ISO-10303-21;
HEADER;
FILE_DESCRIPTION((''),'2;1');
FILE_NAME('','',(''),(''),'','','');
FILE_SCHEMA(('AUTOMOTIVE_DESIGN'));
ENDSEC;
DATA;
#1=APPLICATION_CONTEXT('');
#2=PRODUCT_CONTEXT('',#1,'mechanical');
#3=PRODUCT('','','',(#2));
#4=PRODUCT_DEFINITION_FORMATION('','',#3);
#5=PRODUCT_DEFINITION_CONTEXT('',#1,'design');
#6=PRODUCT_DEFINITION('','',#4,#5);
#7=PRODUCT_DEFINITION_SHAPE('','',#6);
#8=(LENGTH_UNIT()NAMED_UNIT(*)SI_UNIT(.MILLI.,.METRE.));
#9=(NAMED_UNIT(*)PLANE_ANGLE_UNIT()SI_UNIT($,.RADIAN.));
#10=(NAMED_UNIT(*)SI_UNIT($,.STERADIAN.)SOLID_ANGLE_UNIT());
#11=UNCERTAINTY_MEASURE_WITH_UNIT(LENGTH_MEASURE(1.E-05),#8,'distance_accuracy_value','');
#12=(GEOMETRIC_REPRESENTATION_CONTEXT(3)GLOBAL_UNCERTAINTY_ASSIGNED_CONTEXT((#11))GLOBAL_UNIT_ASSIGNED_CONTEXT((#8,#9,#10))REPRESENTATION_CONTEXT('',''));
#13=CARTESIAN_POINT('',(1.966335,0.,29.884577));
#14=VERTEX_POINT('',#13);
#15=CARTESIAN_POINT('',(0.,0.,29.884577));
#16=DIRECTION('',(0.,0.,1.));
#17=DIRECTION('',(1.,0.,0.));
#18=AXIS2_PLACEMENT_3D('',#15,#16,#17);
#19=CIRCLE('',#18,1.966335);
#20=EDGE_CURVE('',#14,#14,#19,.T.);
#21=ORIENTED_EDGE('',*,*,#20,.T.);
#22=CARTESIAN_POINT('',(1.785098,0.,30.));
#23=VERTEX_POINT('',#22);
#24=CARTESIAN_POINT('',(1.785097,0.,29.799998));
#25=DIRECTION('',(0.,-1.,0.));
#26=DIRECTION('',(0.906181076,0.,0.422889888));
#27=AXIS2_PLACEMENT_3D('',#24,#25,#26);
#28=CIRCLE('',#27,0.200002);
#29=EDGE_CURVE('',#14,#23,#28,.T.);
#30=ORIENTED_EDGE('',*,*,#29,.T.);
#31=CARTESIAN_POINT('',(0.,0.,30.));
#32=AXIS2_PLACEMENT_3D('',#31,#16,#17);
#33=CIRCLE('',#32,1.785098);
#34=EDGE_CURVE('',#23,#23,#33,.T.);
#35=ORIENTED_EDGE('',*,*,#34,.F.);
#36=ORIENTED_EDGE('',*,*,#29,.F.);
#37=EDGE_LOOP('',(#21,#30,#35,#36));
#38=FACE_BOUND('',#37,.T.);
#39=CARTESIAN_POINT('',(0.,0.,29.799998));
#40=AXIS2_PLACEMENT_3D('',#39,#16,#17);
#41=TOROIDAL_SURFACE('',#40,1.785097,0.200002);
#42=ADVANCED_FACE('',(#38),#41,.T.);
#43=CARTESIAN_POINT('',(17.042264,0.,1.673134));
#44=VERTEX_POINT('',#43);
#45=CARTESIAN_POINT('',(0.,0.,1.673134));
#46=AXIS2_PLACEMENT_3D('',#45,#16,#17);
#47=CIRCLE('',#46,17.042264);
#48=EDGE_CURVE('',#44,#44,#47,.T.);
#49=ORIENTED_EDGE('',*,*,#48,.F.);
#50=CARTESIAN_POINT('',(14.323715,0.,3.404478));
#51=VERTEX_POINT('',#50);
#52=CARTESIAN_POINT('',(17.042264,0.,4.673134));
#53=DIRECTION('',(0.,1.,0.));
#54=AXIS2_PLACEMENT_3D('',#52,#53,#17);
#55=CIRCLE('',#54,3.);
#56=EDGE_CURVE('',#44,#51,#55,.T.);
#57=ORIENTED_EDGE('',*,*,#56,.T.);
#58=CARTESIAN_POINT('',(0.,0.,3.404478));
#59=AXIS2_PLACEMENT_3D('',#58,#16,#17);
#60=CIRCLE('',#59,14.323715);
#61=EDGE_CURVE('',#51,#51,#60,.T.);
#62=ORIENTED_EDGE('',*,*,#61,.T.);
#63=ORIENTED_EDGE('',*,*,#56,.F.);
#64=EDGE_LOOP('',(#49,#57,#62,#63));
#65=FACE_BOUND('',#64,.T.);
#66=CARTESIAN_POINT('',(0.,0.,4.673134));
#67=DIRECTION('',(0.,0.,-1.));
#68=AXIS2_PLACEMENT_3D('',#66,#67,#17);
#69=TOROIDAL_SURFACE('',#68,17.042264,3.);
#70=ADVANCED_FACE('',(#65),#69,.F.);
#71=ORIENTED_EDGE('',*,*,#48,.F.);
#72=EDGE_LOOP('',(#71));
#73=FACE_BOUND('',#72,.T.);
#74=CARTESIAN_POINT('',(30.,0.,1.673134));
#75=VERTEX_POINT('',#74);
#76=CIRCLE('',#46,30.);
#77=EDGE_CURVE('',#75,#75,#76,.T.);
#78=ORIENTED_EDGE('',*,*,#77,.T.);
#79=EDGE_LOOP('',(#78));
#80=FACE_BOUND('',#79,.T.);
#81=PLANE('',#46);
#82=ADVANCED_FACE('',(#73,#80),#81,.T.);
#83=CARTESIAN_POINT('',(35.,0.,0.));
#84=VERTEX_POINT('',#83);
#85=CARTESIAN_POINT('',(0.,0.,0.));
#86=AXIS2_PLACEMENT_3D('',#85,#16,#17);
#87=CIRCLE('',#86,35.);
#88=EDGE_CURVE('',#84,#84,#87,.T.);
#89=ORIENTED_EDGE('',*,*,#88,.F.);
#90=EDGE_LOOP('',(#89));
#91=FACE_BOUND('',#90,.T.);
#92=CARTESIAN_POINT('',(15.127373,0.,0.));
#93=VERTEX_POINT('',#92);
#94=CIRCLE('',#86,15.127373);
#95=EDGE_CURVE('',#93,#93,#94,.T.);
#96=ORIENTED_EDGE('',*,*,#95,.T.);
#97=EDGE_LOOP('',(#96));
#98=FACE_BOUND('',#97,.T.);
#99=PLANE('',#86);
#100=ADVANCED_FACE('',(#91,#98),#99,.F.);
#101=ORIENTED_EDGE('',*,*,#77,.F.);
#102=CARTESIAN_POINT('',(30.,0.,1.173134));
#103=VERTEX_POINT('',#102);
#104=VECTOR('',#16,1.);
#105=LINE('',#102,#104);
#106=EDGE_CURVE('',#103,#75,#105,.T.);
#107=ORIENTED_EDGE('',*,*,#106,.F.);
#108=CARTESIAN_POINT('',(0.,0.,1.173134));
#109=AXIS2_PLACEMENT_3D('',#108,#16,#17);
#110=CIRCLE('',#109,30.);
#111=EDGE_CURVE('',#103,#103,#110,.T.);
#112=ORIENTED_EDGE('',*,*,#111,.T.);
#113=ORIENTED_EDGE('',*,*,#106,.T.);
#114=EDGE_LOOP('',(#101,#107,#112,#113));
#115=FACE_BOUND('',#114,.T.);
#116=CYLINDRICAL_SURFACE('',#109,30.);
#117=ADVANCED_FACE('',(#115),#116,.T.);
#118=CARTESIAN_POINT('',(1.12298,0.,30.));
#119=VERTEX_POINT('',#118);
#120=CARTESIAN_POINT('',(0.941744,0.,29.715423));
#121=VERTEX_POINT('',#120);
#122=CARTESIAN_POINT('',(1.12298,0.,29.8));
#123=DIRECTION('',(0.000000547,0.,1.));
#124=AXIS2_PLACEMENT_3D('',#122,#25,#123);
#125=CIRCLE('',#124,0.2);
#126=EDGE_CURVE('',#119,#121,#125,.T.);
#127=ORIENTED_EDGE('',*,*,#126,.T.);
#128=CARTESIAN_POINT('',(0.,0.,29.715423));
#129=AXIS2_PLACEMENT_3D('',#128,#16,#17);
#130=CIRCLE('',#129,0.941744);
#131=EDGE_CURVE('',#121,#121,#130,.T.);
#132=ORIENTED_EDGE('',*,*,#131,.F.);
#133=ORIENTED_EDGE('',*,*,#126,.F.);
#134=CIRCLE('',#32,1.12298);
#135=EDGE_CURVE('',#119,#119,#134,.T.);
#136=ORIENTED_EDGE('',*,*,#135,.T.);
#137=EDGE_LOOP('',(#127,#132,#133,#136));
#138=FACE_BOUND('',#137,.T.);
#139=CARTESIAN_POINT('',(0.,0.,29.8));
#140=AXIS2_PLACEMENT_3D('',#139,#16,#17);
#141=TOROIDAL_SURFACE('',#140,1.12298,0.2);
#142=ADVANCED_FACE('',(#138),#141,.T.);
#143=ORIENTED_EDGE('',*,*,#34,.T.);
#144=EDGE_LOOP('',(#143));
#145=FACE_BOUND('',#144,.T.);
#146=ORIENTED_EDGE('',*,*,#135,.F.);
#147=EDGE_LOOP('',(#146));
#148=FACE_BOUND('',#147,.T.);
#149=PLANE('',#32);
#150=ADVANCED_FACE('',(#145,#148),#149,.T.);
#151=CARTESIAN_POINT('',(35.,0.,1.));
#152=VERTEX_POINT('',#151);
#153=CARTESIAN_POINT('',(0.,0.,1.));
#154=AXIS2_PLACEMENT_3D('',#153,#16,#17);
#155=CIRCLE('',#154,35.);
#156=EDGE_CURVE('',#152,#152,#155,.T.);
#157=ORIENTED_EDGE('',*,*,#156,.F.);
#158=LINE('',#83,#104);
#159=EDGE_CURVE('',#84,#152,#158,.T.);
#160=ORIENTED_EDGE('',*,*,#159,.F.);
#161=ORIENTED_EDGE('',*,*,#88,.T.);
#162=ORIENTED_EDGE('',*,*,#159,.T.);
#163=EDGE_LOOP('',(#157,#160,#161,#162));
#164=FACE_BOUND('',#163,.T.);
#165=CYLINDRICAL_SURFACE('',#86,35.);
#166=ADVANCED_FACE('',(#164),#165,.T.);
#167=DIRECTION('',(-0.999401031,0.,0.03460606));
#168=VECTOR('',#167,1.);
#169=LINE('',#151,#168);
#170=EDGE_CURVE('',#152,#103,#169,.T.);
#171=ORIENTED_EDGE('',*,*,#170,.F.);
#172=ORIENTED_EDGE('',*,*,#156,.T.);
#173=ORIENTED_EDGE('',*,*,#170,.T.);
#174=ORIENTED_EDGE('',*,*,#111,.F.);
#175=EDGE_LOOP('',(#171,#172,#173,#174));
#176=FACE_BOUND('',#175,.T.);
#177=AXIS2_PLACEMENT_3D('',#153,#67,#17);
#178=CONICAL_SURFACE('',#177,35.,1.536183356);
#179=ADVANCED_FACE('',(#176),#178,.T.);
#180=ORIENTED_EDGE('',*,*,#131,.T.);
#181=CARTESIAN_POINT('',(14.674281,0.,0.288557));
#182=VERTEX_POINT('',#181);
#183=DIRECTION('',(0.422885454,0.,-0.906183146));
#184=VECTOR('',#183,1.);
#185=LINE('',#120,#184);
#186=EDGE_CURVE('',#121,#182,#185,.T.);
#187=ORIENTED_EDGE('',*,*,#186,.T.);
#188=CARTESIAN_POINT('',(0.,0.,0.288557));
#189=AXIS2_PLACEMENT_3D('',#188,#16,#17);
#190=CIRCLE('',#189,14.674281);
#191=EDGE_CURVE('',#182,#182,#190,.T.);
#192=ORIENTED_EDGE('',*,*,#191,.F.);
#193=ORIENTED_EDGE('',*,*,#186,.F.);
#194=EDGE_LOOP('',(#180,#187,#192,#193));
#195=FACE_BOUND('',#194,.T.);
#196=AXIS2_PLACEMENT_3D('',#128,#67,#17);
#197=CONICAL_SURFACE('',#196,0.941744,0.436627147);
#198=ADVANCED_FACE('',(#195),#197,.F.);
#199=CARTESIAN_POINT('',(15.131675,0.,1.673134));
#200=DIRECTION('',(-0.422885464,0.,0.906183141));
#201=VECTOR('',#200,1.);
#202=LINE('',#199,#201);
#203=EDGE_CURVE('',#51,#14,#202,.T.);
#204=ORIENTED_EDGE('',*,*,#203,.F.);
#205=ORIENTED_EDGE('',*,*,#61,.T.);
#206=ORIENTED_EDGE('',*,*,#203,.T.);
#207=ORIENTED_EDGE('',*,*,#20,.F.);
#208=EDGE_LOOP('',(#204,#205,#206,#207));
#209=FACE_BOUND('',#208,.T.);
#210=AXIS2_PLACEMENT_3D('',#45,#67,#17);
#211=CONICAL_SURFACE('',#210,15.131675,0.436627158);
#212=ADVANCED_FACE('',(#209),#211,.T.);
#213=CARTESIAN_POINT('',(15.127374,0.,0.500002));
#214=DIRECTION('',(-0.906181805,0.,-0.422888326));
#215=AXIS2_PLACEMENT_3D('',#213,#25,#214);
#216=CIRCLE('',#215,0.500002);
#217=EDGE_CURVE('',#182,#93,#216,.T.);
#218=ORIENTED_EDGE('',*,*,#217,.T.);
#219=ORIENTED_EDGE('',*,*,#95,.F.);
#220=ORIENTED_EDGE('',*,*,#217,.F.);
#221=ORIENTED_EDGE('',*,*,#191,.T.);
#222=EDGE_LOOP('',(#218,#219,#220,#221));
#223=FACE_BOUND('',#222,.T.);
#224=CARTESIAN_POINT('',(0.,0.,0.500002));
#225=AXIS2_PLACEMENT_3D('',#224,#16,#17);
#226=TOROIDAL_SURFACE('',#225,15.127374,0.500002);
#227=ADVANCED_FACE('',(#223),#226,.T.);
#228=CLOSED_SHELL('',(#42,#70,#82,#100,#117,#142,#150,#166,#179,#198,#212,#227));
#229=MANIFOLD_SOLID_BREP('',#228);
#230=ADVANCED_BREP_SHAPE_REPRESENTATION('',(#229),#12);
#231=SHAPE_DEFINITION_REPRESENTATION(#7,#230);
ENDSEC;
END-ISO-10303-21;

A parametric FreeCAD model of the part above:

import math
import FreeCAD as App
import Part
import Sketcher
Q = App.Units.Quantity


def edges_at(feature, points):
    """Names of the edges that pass closest to the given points."""
    edges = feature.Shape.Edges
    near = lambda p: min(range(len(edges)), key=lambda i: edges[i].distToShape(Part.Vertex(*p))[0])
    return sorted({f"Edge{near(p) + 1}" for p in points})

doc = App.newDocument("Part")
body = doc.addObject("PartDesign::Body", "Body")

# Sketch on XZ plane
sketch1 = doc.addObject("Sketcher::SketchObject", "Sketch")
body.addObject(sketch1)
sketch1.AttachmentSupport = (doc.XZ_Plane, [""])
sketch1.MapMode = "FlatFace"
sketch1.addGeometry(Part.ArcOfCircle(Part.Circle(App.Vector(15.127374, 0.500002, 0), App.Vector(0, 0, 1), 0.500002), math.radians(-154.982926), math.radians(-90.000084)), False)
sketch1.addGeometry(Part.LineSegment(App.Vector(15.127373, 0, 0), App.Vector(35, 0, 0)), False)
sketch1.addGeometry(Part.LineSegment(App.Vector(35, 0, 0), App.Vector(35, 1, 0)), False)
sketch1.addGeometry(Part.LineSegment(App.Vector(35, 1, 0), App.Vector(30, 1.173134, 0)), False)
sketch1.addGeometry(Part.LineSegment(App.Vector(30, 1.173134, 0), App.Vector(30, 1.673134, 0)), False)
sketch1.addGeometry(Part.LineSegment(App.Vector(30, 1.673134, 0), App.Vector(15.131675, 1.673134, 0)), False)
sketch1.addGeometry(Part.LineSegment(App.Vector(15.131675, 1.673134, 0), App.Vector(1.966335, 29.884577, 0)), False)
sketch1.addGeometry(Part.ArcOfCircle(Part.Circle(App.Vector(1.785097, 29.799998, 0), App.Vector(0, 0, 1), 0.200002), math.radians(25.017173), math.radians(89.999785)), False)
sketch1.addGeometry(Part.LineSegment(App.Vector(1.785098, 30, 0), App.Vector(1.12298, 30, 0)), False)
sketch1.addGeometry(Part.ArcOfCircle(Part.Circle(App.Vector(1.12298, 29.8, 0), App.Vector(0, 0, 1), 0.2), math.radians(89.999969), math.radians(205.017088)), False)
sketch1.addGeometry(Part.LineSegment(App.Vector(0.941744, 29.715423, 0), App.Vector(14.674281, 0.288557, 0)), False)
sketch1.addConstraint(Sketcher.Constraint("Tangent", 0, 2, 1, 1))
sketch1.addConstraint(Sketcher.Constraint("Coincident", 1, 2, 2, 1))
sketch1.addConstraint(Sketcher.Constraint("Coincident", 2, 2, 3, 1))
sketch1.addConstraint(Sketcher.Constraint("Coincident", 3, 2, 4, 1))
sketch1.addConstraint(Sketcher.Constraint("Coincident", 4, 2, 5, 1))
sketch1.addConstraint(Sketcher.Constraint("Coincident", 5, 2, 6, 1))
sketch1.addConstraint(Sketcher.Constraint("Coincident", 6, 2, 7, 1))
sketch1.addConstraint(Sketcher.Constraint("Coincident", 7, 2, 8, 1))
sketch1.addConstraint(Sketcher.Constraint("Tangent", 8, 2, 9, 1))
sketch1.addConstraint(Sketcher.Constraint("Coincident", 9, 2, 10, 1))
sketch1.addConstraint(Sketcher.Constraint("Coincident", 10, 2, 0, 1))
sketch1.addConstraint(Sketcher.Constraint("Horizontal", 1))
sketch1.addConstraint(Sketcher.Constraint("Vertical", 2))
sketch1.addConstraint(Sketcher.Constraint("Vertical", 4))
sketch1.addConstraint(Sketcher.Constraint("Horizontal", 5))
sketch1.addConstraint(Sketcher.Constraint("Horizontal", 8))
sketch1.addConstraint(Sketcher.Constraint("PointOnObject", 0, 2, -1))
sketch1.addConstraint(Sketcher.Constraint("Parallel", 6, 10))
sketch1.addConstraint(Sketcher.Constraint("Radius", 7, Q("0.200002 mm")))
sketch1.addConstraint(Sketcher.Constraint("Radius", 9, Q("0.2 mm")))
sketch1.addConstraint(Sketcher.Constraint("DistanceY", 2, 1, 2, 2, Q("1 mm")))
sketch1.addConstraint(Sketcher.Constraint("DistanceY", 4, 1, 4, 2, Q("0.5 mm")))
sketch1.addConstraint(Sketcher.Constraint("DistanceX", -1, 1, 1, 2, Q("35 mm")))
sketch1.addConstraint(Sketcher.Constraint("DistanceX", -1, 1, 3, 2, Q("30 mm")))
sketch1.addConstraint(Sketcher.Constraint("DistanceY", -1, 1, 7, 2, Q("30 mm")))
sketch1.addConstraint(Sketcher.Constraint("DistanceY", 0, 3, 9, 3, Q("29.299998 mm")))
sketch1.addConstraint(Sketcher.Constraint("DistanceX", -1, 1, 7, 2, Q("1.785098 mm")))
sketch1.addConstraint(Sketcher.Constraint("DistanceX", 0, 3, 5, 2, Q("0.004301 mm")))
sketch1.addConstraint(Sketcher.Constraint("Distance", 10, Q("32.47342 mm")))
sketch1.addConstraint(Sketcher.Constraint("DistanceX", 1, 1, 1, 2, Q("19.872627 mm")))
sketch1.addConstraint(Sketcher.Constraint("DistanceX", 8, 2, 8, 1, Q("0.662118 mm")))
sketch1.addConstraint(Sketcher.Constraint("DistanceX", -1, 1, 10, 2, Q("14.674281 mm")))
sketch1.addConstraint(Sketcher.Constraint("DistanceY", 0, 3, 3, 2, Q("0.673132 mm")))
sketch1.addConstraint(Sketcher.Constraint("DistanceY", 7, 3, 6, 2, Q("0.084579 mm")))
revolution = doc.addObject("PartDesign::Revolution", "Revolution")
body.addObject(revolution)
revolution.Profile = sketch1
revolution.ReferenceAxis = (sketch1, ["V_Axis"])
revolution.Angle = 360
doc.recompute()

fillet = doc.addObject("PartDesign::Fillet", "Fillet")
body.addObject(fillet)
fillet.Base = (revolution, edges_at(revolution, [(-15.132, 0, 1.673)]))
fillet.Radius = 3

doc.recompute()
